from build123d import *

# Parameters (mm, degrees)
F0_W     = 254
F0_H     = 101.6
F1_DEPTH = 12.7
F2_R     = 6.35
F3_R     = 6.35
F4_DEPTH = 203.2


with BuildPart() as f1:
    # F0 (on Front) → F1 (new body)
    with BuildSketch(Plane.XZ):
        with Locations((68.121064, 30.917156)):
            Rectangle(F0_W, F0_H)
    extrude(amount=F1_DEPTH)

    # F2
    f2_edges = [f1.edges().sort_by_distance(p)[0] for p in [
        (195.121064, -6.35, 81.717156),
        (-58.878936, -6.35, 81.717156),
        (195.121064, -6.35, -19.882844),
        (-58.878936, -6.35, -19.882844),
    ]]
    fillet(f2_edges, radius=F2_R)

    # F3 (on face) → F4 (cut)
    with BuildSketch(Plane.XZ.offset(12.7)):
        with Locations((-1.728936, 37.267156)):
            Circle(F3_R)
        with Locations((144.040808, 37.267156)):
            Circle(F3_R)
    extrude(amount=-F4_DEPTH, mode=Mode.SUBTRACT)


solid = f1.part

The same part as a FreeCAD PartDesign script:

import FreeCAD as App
import Part
import Sketcher

V = App.Vector
Q = App.Units.Quantity


def edges_at(feature, points):
    """Names of the edges that pass closest to the given points."""
    edges = feature.Shape.Edges
    near = lambda p: min(range(len(edges)), key=lambda i: edges[i].distToShape(Part.Vertex(*p))[0])
    return sorted({f"Edge{near(p) + 1}" for p in points})

doc = App.newDocument("Part")
body = doc.addObject("PartDesign::Body", "Body")

sketch1 = doc.addObject("Sketcher::SketchObject", "Sketch")
body.addObject(sketch1)
sketch1.AttachmentSupport = (doc.XZ_Plane, [""])
sketch1.MapMode = "FlatFace"
sketch1.addGeometry(Part.LineSegment(V(-58.878936, 81.717156, 0), V(-58.878936, -19.882844, 0)), False)
sketch1.addGeometry(Part.LineSegment(V(-58.878936, -19.882844, 0), V(195.121064, -19.882844, 0)), False)
sketch1.addGeometry(Part.LineSegment(V(195.121064, -19.882844, 0), V(195.121064, 81.717156, 0)), False)
sketch1.addGeometry(Part.LineSegment(V(195.121064, 81.717156, 0), V(-58.878936, 81.717156, 0)), False)
sketch1.addConstraint(Sketcher.Constraint("Coincident", 0, 2, 1, 1))
sketch1.addConstraint(Sketcher.Constraint("Coincident", 1, 2, 2, 1))
sketch1.addConstraint(Sketcher.Constraint("Coincident", 2, 2, 3, 1))
sketch1.addConstraint(Sketcher.Constraint("Coincident", 3, 2, 0, 1))
sketch1.addConstraint(Sketcher.Constraint("Vertical", 0))
sketch1.addConstraint(Sketcher.Constraint("Horizontal", 1))
sketch1.addConstraint(Sketcher.Constraint("Vertical", 2))
sketch1.addConstraint(Sketcher.Constraint("Horizontal", 3))
sketch1.addConstraint(Sketcher.Constraint("DistanceX", 1, 1, 1, 2, Q("10 in")))
sketch1.addConstraint(Sketcher.Constraint("DistanceY", 0, 2, 0, 1, Q("4 in")))
sketch1.addConstraint(Sketcher.Constraint("DistanceX", 0, 2, -1, 1, Q("58.878936 mm")))
sketch1.addConstraint(Sketcher.Constraint("DistanceY", 0, 2, -1, 1, Q("19.882844 mm")))
pad1 = doc.addObject("PartDesign::Pad", "Pad")
body.addObject(pad1)
pad1.Profile = sketch1
pad1.Length = Q("0.5 in")
doc.recompute()

fillet = doc.addObject("PartDesign::Fillet", "Fillet")
body.addObject(fillet)
fillet.Base = (pad1, edges_at(pad1, [
    (195.121, -6.35, 81.717),
    (-58.879, -6.35, 81.717),
    (195.121, -6.35, -19.883),
    (-58.879, -6.35, -19.883),
]))
fillet.Radius = Q("0.25 in")

sketch2 = doc.addObject("Sketcher::SketchObject", "Sketch001")
body.addObject(sketch2)
sketch2.AttachmentSupport = (doc.XZ_Plane, [""])
sketch2.MapMode = "FlatFace"
sketch2.AttachmentOffset = App.Placement(V(0, 0, 0.5 * 25.4), App.Rotation())
sketch2.addGeometry(Part.Circle(V(-1.728936, 37.267156, 0), V(0, 0, 1), 6.35), False)
sketch2.addGeometry(Part.Circle(V(144.040808, 37.267156, 0), V(0, 0, 1), 6.35), False)
sketch2.addConstraint(Sketcher.Constraint("Equal", 0, 1))
sketch2.addConstraint(Sketcher.Constraint("Horizontal", 0, 3, 1, 3))
sketch2.addConstraint(Sketcher.Constraint("Diameter", 0, Q("0.5 in")))
sketch2.addConstraint(Sketcher.Constraint("DistanceX", -1, 1, 1, 3, Q("144.040808 mm")))
sketch2.addConstraint(Sketcher.Constraint("DistanceX", 0, 3, -1, 1, Q("1.728936 mm")))
sketch2.addConstraint(Sketcher.Constraint("DistanceY", -1, 1, 0, 3, Q("37.267156 mm")))
pocket1 = doc.addObject("PartDesign::Pocket", "Pocket")
body.addObject(pocket1)
pocket1.Profile = sketch2
pocket1.Length = Q("8 in")

doc.recompute()
